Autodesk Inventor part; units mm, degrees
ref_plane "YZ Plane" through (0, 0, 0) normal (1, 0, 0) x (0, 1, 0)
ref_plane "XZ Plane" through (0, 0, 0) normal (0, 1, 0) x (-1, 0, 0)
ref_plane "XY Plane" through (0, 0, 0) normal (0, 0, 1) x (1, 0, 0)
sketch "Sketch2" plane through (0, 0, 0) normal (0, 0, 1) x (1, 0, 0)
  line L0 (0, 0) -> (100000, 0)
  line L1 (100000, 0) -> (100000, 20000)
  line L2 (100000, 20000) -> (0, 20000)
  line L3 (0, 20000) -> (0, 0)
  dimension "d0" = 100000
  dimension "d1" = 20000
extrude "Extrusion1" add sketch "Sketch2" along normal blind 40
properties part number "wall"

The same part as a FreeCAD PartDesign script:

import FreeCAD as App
import Part
import Sketcher

doc = App.newDocument("Part")
body = doc.addObject("PartDesign::Body", "Body")

sketch1 = doc.addObject("Sketcher::SketchObject", "Sketch")
body.addObject(sketch1)
sketch1.AttachmentSupport = (doc.XY_Plane, [""])
sketch1.MapMode = "FlatFace"
sketch1.addGeometry([
    Part.LineSegment(App.Vector(0, 20000, 0), App.Vector(0, 0, 0)),
    Part.LineSegment(App.Vector(0, 0, 0), App.Vector(100000, 0, 0)),
    Part.LineSegment(App.Vector(100000, 0, 0), App.Vector(100000, 20000, 0)),
    Part.LineSegment(App.Vector(100000, 20000, 0), App.Vector(0, 20000, 0)),
], False)
sketch1.addConstraint([
    Sketcher.Constraint("Coincident", 0, 2, 1, 1),
    Sketcher.Constraint("Coincident", 1, 2, 2, 1),
    Sketcher.Constraint("Coincident", 2, 2, 3, 1),
    Sketcher.Constraint("Coincident", 3, 2, 0, 1),
    Sketcher.Constraint("Vertical", 0),
    Sketcher.Constraint("Horizontal", 1),
    Sketcher.Constraint("Vertical", 2),
    Sketcher.Constraint("Horizontal", 3),
    Sketcher.Constraint("Coincident", 0, 2, -1, 1),
    Sketcher.Constraint("DistanceX", 1, 1, 1, 2, 100000.0),
    Sketcher.Constraint("DistanceY", 0, 2, 0, 1, 20000.0),
])
pad1 = doc.addObject("PartDesign::Pad", "Pad")
body.addObject(pad1)
pad1.Profile = sketch1
pad1.Length = 40

doc.recompute()
